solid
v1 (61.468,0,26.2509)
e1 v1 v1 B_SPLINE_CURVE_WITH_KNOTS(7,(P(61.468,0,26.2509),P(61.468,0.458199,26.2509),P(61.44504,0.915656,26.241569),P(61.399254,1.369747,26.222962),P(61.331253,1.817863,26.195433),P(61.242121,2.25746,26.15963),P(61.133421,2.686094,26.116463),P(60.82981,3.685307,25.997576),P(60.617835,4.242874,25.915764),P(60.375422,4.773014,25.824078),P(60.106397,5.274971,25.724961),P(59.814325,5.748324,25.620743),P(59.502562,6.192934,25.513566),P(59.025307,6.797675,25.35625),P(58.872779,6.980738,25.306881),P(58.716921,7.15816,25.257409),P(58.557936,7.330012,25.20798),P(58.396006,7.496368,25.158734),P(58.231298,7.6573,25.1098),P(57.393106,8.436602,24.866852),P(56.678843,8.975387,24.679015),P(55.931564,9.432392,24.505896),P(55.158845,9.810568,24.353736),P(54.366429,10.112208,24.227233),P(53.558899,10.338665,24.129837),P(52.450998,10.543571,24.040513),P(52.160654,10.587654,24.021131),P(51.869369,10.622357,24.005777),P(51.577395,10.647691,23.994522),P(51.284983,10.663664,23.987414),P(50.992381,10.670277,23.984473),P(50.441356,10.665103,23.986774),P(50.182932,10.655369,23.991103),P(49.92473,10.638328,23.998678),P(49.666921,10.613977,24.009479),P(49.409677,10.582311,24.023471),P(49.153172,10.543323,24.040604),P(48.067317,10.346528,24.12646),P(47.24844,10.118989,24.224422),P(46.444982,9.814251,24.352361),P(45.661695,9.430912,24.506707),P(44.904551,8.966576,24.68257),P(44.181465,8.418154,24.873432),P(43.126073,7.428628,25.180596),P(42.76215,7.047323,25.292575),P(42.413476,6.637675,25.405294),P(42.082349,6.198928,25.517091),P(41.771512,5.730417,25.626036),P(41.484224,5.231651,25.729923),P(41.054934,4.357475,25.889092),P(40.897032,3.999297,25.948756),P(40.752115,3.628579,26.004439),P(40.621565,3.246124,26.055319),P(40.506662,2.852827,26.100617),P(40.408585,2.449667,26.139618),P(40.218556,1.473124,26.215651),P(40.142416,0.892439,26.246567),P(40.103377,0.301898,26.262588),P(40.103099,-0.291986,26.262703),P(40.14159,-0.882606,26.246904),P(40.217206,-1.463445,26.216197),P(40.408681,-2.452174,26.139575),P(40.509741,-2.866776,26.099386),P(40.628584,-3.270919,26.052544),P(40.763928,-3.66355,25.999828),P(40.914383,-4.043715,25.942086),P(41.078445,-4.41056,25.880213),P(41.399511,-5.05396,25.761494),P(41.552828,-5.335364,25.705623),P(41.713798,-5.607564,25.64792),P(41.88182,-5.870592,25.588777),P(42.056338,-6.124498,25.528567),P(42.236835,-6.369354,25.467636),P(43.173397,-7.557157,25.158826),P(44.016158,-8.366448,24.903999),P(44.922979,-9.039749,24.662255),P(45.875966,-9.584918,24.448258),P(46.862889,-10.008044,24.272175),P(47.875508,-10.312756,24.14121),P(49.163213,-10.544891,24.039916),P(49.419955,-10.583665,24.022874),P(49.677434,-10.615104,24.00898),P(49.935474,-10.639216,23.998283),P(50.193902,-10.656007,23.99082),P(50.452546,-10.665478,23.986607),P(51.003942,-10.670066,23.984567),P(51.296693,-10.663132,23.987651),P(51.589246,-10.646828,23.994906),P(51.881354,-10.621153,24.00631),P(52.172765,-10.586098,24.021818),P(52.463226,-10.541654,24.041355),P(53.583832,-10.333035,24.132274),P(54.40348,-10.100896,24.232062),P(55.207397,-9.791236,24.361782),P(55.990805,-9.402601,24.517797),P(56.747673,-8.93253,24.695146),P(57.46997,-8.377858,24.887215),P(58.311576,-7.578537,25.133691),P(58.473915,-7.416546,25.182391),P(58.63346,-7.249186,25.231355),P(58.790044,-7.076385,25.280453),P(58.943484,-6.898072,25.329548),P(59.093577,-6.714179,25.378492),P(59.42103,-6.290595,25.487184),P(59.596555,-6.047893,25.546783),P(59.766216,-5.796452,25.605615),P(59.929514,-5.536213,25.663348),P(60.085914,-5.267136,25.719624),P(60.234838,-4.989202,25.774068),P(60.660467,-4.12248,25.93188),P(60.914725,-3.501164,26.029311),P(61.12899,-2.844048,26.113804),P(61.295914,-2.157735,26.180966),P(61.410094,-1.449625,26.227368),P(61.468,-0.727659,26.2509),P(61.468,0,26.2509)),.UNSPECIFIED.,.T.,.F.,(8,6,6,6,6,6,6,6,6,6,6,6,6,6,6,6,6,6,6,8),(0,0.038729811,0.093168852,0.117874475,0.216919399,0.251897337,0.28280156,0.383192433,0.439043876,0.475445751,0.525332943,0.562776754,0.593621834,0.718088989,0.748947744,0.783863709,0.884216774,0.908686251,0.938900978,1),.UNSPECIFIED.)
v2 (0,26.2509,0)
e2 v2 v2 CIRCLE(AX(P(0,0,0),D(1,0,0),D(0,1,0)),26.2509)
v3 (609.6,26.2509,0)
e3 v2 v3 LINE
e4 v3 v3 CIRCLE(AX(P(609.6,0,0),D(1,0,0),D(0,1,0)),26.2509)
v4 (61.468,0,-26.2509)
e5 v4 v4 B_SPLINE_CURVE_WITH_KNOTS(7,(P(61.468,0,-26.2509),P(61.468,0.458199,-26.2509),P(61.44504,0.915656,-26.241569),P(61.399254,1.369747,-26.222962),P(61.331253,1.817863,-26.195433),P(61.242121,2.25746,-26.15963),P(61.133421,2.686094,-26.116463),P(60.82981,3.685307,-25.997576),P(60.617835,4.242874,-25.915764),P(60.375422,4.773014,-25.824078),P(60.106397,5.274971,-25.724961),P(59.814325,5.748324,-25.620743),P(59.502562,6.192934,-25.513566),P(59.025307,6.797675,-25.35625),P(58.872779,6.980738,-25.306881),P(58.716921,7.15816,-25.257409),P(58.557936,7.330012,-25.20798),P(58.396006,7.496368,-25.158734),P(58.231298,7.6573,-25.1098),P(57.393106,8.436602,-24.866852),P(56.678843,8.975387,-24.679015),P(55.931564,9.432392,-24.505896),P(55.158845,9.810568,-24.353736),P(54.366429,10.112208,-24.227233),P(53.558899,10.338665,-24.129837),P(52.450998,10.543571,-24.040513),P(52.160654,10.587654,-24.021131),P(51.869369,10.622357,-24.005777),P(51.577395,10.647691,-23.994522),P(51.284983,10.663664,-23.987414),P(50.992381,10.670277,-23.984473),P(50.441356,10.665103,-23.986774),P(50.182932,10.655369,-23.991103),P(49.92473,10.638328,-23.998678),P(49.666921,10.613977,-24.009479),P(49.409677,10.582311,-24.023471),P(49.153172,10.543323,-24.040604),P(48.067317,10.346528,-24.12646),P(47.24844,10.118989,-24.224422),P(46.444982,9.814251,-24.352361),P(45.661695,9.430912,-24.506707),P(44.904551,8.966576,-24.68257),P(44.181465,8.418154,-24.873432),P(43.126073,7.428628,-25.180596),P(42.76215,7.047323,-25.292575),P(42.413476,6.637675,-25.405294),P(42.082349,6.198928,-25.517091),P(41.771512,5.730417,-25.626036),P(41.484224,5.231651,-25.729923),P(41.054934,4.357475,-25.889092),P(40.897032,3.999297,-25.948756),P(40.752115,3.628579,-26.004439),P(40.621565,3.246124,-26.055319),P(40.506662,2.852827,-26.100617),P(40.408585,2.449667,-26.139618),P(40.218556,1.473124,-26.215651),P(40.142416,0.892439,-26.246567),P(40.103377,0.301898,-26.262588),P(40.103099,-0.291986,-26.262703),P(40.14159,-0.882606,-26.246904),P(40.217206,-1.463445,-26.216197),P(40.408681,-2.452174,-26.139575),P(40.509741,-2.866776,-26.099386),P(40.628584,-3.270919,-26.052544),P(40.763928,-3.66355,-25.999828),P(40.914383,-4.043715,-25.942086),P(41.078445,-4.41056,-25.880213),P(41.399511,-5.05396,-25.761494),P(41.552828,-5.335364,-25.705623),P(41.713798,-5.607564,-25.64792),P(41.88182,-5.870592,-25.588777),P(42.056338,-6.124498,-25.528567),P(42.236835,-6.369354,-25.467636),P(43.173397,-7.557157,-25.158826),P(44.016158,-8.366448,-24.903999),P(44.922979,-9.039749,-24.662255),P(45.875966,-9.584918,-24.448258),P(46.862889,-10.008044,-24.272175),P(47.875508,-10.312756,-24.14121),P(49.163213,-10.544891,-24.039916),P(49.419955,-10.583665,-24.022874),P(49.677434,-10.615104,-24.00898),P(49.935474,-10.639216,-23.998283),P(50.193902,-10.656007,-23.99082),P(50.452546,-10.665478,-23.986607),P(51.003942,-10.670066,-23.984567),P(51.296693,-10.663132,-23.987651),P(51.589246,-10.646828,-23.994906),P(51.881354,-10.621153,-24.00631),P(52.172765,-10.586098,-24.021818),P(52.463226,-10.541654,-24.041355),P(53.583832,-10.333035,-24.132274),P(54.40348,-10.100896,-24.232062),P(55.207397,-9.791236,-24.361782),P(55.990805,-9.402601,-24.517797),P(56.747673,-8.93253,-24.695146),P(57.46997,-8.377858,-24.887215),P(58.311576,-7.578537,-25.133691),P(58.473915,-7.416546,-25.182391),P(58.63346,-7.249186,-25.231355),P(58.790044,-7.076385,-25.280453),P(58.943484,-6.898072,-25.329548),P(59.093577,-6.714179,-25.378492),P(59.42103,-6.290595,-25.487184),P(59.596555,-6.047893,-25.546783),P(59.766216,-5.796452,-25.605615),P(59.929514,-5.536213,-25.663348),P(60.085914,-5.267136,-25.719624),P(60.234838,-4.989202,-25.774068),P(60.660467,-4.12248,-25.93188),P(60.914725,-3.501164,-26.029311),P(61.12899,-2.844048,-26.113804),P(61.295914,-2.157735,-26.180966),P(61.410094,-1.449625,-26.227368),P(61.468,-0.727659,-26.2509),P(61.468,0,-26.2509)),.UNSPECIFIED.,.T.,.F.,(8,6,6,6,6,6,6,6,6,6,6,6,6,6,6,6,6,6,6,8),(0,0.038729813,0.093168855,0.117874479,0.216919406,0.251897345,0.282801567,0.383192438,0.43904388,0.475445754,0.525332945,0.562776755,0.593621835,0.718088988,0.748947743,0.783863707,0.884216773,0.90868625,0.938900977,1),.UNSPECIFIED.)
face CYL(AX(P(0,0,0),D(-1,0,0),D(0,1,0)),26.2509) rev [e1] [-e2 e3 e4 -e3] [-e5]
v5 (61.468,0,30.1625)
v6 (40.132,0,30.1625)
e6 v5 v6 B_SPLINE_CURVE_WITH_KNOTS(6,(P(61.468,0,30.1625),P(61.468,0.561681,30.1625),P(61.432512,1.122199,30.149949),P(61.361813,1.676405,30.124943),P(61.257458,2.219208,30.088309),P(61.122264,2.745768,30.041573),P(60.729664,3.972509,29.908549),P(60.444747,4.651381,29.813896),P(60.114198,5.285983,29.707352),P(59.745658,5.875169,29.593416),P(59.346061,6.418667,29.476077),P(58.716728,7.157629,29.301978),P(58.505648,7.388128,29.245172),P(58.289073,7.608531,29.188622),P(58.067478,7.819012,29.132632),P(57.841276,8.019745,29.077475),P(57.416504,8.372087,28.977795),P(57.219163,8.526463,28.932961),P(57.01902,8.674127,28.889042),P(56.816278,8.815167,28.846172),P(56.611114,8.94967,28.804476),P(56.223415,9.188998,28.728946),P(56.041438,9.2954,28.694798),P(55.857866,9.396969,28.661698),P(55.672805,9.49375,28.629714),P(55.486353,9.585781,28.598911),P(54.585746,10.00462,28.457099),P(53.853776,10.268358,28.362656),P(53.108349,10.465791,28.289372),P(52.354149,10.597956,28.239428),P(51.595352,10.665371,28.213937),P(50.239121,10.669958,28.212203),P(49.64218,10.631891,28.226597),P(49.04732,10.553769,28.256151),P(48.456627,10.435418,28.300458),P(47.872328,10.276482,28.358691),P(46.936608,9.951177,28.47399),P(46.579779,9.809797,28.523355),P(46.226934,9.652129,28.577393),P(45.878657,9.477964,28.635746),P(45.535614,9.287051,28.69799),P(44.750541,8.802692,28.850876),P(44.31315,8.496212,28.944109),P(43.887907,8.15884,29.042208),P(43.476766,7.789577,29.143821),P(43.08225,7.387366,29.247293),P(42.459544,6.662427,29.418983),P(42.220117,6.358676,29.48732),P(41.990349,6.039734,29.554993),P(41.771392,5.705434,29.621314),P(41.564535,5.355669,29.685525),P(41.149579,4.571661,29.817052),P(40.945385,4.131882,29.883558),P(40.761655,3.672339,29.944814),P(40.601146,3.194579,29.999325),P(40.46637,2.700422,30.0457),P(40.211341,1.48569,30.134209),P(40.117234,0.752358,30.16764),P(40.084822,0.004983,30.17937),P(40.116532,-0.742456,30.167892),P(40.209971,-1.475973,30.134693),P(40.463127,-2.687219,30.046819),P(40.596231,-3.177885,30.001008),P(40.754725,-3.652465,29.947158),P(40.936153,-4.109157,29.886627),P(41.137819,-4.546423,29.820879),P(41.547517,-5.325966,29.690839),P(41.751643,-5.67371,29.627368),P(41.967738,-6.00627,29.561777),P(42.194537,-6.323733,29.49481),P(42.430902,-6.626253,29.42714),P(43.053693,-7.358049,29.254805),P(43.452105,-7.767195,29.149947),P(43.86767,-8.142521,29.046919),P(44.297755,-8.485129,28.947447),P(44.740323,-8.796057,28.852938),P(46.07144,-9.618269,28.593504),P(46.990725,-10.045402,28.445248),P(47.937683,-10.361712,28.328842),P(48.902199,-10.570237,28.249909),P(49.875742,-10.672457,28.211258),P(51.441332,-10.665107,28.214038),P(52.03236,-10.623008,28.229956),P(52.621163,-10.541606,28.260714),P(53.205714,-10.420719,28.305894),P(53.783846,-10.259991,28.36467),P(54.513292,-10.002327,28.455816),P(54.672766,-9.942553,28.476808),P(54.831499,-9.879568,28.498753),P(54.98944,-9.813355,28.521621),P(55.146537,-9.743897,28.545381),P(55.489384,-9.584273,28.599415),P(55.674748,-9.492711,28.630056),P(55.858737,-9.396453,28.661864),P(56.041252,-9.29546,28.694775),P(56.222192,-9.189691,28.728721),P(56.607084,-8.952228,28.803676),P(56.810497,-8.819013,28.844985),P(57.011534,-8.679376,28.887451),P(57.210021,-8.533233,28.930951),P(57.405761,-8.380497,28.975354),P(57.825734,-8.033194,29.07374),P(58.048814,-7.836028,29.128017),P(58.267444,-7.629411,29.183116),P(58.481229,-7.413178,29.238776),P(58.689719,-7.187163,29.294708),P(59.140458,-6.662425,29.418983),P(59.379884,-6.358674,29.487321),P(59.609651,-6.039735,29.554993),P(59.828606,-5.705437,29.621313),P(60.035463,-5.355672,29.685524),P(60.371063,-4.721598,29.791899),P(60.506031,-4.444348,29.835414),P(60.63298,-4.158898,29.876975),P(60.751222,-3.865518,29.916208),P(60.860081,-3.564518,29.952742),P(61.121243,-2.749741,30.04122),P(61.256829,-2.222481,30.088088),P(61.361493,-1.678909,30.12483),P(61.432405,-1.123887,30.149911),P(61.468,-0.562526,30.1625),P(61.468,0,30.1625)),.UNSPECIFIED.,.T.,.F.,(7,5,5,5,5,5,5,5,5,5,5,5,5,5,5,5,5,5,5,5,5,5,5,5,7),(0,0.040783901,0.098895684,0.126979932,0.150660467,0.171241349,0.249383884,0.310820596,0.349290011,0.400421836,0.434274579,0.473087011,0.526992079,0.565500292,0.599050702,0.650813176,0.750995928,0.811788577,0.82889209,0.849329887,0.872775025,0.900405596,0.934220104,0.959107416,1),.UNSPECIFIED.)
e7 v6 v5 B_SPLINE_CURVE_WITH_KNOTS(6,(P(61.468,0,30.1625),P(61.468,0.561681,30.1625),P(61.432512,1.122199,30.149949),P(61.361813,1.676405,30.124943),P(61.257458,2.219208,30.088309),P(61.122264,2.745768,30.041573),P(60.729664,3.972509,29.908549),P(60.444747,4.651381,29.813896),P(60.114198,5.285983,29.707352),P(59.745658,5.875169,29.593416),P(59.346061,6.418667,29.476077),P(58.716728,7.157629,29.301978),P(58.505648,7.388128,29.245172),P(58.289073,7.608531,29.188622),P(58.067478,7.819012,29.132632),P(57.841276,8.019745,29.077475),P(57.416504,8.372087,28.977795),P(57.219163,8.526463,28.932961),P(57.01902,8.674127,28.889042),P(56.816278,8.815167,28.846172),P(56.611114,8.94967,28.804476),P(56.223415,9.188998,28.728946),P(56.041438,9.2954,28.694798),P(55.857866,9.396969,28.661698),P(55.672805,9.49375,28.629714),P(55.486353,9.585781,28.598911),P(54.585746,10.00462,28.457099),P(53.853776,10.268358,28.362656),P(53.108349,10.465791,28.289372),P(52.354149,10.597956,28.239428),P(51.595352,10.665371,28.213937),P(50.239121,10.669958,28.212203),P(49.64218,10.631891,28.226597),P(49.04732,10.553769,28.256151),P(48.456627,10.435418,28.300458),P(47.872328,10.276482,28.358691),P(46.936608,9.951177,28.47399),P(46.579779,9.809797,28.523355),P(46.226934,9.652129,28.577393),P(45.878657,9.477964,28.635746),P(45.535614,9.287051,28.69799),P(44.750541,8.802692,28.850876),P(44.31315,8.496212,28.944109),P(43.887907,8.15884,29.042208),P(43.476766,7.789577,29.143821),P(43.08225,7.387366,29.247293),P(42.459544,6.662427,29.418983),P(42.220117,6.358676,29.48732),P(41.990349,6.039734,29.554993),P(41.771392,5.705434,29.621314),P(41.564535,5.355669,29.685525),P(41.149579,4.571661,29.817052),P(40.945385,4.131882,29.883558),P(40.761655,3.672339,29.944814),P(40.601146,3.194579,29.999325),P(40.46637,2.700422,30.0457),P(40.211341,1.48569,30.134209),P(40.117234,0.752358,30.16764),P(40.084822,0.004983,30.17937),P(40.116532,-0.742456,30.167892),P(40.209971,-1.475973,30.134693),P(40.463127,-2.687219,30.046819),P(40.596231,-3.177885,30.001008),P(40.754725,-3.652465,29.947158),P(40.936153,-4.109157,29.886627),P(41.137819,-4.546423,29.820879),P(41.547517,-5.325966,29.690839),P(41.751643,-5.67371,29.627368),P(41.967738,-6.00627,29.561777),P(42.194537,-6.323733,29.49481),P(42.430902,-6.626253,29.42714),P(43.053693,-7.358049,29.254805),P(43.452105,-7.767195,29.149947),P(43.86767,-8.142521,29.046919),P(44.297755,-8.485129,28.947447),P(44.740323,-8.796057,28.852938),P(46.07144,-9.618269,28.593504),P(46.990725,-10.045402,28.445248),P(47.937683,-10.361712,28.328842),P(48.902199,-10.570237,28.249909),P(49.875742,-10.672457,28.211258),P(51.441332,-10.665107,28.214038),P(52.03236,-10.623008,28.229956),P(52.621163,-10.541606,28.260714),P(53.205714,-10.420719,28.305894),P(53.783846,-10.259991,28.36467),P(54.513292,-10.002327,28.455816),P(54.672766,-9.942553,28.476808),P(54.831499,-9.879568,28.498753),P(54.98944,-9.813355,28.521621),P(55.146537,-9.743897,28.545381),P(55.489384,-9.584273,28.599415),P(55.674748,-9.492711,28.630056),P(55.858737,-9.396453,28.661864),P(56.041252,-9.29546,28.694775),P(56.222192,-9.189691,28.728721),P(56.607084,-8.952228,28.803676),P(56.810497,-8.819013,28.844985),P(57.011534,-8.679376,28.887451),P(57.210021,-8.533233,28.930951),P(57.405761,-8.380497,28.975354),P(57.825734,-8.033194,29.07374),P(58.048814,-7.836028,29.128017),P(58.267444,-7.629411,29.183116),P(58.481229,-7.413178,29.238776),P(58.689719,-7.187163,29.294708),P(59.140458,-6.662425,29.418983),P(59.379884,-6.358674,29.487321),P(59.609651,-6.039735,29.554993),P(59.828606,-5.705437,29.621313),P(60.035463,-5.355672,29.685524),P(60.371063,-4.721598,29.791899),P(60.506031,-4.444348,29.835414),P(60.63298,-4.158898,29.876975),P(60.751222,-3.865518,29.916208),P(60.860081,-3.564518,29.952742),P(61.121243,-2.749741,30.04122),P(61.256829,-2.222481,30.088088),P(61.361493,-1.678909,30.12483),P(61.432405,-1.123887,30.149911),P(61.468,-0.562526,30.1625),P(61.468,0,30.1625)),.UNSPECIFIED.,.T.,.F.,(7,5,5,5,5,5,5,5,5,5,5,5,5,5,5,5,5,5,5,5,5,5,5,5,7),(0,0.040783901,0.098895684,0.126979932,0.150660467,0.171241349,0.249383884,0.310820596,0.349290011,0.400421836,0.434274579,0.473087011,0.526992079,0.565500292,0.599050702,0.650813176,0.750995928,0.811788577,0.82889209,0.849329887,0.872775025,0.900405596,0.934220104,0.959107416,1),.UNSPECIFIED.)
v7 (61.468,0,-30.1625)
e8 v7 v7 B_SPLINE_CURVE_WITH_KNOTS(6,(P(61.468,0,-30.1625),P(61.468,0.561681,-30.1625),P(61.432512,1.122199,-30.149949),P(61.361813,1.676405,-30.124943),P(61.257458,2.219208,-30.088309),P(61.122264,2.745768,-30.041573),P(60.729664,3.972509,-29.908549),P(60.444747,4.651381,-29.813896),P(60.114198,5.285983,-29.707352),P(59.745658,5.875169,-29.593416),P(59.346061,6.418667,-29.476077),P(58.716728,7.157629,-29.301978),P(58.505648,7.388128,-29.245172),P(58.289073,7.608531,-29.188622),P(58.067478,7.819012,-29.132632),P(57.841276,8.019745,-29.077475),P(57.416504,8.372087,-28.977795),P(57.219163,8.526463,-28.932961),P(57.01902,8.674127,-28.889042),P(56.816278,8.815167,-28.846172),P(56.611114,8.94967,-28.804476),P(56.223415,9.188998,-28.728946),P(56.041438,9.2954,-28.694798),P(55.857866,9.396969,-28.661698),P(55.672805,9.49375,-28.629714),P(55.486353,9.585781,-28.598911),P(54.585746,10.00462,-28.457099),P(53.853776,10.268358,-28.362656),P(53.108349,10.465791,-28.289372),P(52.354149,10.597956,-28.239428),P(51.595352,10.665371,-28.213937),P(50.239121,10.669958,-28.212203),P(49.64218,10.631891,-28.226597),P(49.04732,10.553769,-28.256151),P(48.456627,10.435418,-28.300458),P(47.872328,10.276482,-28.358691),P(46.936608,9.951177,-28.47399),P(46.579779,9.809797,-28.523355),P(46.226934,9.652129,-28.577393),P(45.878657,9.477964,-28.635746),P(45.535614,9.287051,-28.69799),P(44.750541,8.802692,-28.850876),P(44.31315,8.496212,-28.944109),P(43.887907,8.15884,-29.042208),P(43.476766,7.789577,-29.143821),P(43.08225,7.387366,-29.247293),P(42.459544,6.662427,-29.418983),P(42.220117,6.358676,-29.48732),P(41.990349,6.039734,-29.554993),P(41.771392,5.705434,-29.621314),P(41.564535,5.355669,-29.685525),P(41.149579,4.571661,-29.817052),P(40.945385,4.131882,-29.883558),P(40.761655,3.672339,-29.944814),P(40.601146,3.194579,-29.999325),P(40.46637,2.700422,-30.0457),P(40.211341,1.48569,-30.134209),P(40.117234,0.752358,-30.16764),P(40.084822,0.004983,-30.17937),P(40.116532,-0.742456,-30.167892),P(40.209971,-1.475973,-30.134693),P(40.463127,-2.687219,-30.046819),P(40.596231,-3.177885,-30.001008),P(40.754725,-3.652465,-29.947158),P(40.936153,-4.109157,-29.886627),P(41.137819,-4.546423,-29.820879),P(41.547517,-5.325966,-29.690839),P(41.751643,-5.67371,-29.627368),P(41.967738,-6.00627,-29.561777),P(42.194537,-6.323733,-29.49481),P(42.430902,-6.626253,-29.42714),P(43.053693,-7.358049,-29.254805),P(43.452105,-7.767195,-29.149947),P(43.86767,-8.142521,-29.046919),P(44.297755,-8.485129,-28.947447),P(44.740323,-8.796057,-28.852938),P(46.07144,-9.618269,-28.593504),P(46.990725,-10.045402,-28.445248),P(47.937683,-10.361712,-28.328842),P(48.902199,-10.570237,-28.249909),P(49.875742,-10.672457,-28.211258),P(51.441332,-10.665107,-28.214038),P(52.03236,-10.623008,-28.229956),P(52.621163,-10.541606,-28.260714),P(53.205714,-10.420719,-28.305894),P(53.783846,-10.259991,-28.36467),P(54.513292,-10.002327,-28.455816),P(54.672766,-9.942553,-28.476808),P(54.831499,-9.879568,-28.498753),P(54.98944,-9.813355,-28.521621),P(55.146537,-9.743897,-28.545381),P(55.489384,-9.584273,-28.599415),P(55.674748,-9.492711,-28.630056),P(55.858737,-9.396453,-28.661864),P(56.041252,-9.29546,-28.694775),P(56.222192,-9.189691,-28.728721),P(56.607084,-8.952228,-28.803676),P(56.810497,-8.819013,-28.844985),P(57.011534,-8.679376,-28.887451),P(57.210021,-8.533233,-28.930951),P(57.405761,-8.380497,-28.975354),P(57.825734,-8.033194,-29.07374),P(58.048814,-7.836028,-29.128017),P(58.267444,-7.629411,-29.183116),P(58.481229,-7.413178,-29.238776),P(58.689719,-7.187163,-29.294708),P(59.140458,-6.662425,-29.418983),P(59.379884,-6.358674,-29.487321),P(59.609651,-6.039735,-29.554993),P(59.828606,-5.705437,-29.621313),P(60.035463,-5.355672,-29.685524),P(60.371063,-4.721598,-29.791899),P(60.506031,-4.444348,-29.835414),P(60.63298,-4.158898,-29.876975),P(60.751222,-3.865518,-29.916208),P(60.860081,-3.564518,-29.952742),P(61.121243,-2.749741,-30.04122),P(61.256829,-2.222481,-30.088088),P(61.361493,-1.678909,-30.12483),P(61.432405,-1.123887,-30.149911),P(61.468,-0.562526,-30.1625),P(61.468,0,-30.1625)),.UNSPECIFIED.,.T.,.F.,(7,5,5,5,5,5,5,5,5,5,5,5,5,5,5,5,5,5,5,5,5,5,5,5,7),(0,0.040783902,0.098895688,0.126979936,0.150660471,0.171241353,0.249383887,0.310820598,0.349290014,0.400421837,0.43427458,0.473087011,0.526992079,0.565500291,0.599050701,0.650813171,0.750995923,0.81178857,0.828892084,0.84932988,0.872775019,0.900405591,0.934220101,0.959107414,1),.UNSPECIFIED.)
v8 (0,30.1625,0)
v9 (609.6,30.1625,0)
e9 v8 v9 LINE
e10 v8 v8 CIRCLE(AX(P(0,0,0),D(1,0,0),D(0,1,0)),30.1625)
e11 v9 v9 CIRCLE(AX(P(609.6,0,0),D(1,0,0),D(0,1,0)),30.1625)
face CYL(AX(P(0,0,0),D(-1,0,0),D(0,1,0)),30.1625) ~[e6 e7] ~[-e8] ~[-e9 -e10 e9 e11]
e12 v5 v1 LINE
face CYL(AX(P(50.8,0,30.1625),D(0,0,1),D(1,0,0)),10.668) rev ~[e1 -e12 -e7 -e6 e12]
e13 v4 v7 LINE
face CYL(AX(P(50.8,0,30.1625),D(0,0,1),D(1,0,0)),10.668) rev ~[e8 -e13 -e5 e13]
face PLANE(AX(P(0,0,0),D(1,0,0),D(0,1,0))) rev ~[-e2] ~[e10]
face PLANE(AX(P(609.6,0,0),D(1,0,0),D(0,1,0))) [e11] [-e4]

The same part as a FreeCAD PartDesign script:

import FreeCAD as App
import Part
import Sketcher

V = App.Vector
Q = App.Units.Quantity

doc = App.newDocument("Part")
body = doc.addObject("PartDesign::Body", "Body")

# Sketch on YZ plane
sketch1 = body.newObject("Sketcher::SketchObject", "Sketch")
sketch1.AttachmentSupport = (doc.getObject("YZ_Plane"), [""])
sketch1.MapMode = "FlatFace"
sketch1.addGeometry([
    Part.Circle(V(0, 0, 0), V(0, 0, 1), 30),
    Part.Circle(V(0, 0, 0), V(0, 0, 1), 26),
], False)
sketch1.addConstraint([
    Sketcher.Constraint("Coincident", 0, 3, -1, 1),
    Sketcher.Constraint("Coincident", 1, 3, -1, 1),
    Sketcher.Constraint("Diameter", 0, Q("2.375 in")),
    Sketcher.Constraint("Diameter", 1, Q("2.067 in")),
])
pad1 = body.newObject("PartDesign::Pad", "Pad")
pad1.Profile = sketch1
pad1.Length = Q("24 in")

# Sketch on XY plane
sketch2 = body.newObject("Sketcher::SketchObject", "Sketch001")
sketch2.AttachmentSupport = (doc.getObject("XY_Plane"), [""])
sketch2.MapMode = "FlatFace"
sketch2.AttachmentOffset = App.Placement(V(0, 0, 1.1875 * 25.4), App.Rotation())
sketch2.addGeometry(Part.Circle(V(51, 0, 0), V(0, 0, 1), 11), False)
sketch2.addConstraint([
    Sketcher.Constraint("PointOnObject", 0, 3, -1),
    Sketcher.Constraint("Diameter", 0, Q("0.84 in")),
    Sketcher.Constraint("DistanceX", -1, 1, 0, 3, Q("2 in")),
])
pocket1 = body.newObject("PartDesign::Pocket", "Pocket")
pocket1.Profile = sketch2
pocket1.Type = "ThroughAll"

doc.recompute()
